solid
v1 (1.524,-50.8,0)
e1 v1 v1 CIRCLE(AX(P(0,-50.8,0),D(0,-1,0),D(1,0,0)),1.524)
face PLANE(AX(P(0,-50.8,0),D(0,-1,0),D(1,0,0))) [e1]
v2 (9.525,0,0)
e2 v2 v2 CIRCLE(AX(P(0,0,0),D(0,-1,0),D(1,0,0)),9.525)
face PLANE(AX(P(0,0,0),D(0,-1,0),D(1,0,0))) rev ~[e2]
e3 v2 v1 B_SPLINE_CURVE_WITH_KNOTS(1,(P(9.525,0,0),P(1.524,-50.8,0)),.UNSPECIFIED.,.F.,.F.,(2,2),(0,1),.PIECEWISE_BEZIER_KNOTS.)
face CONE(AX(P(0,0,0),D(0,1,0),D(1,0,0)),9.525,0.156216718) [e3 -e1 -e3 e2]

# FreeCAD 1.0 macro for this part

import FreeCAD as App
import Part
import Sketcher
from FreeCAD import Vector
Q = App.Units.Quantity

doc = App.newDocument("Part")
body = doc.addObject("PartDesign::Body", "Body")

# Sketch on XZ plane
sketch1 = body.newObject("Sketcher::SketchObject", "Sketch")
sketch1.AttachmentSupport = (doc.getObject("XZ_Plane"), [""])
sketch1.MapMode = "FlatFace"
sketch1.addGeometry(Part.Circle(Vector(0, 0, 0), Vector(0, 0, 1), 10), False)
sketch1.addConstraint([
    Sketcher.Constraint("Coincident", 0, 3, -1, 1),
    Sketcher.Constraint("Diameter", 0, Q("0.75 in")),
])

# Sketch on XZ plane
sketch2 = body.newObject("Sketcher::SketchObject", "Sketch001")
sketch2.AttachmentSupport = (doc.getObject("XZ_Plane"), [""])
sketch2.MapMode = "FlatFace"
sketch2.AttachmentOffset = App.Placement(Vector(0, 0, 2 * 25.4), App.Rotation())
sketch2.addGeometry(Part.Circle(Vector(0, 0, 0), Vector(0, 0, 1), 1.5), False)
sketch2.addConstraint([
    Sketcher.Constraint("Coincident", 0, 3, -1, 1),
    Sketcher.Constraint("Diameter", 0, Q("0.12 in")),
])

additiveloft = body.newObject("PartDesign::AdditiveLoft", "AdditiveLoft")
additiveloft.Profile = sketch1
additiveloft.Sections = [sketch2]

doc.recompute()
